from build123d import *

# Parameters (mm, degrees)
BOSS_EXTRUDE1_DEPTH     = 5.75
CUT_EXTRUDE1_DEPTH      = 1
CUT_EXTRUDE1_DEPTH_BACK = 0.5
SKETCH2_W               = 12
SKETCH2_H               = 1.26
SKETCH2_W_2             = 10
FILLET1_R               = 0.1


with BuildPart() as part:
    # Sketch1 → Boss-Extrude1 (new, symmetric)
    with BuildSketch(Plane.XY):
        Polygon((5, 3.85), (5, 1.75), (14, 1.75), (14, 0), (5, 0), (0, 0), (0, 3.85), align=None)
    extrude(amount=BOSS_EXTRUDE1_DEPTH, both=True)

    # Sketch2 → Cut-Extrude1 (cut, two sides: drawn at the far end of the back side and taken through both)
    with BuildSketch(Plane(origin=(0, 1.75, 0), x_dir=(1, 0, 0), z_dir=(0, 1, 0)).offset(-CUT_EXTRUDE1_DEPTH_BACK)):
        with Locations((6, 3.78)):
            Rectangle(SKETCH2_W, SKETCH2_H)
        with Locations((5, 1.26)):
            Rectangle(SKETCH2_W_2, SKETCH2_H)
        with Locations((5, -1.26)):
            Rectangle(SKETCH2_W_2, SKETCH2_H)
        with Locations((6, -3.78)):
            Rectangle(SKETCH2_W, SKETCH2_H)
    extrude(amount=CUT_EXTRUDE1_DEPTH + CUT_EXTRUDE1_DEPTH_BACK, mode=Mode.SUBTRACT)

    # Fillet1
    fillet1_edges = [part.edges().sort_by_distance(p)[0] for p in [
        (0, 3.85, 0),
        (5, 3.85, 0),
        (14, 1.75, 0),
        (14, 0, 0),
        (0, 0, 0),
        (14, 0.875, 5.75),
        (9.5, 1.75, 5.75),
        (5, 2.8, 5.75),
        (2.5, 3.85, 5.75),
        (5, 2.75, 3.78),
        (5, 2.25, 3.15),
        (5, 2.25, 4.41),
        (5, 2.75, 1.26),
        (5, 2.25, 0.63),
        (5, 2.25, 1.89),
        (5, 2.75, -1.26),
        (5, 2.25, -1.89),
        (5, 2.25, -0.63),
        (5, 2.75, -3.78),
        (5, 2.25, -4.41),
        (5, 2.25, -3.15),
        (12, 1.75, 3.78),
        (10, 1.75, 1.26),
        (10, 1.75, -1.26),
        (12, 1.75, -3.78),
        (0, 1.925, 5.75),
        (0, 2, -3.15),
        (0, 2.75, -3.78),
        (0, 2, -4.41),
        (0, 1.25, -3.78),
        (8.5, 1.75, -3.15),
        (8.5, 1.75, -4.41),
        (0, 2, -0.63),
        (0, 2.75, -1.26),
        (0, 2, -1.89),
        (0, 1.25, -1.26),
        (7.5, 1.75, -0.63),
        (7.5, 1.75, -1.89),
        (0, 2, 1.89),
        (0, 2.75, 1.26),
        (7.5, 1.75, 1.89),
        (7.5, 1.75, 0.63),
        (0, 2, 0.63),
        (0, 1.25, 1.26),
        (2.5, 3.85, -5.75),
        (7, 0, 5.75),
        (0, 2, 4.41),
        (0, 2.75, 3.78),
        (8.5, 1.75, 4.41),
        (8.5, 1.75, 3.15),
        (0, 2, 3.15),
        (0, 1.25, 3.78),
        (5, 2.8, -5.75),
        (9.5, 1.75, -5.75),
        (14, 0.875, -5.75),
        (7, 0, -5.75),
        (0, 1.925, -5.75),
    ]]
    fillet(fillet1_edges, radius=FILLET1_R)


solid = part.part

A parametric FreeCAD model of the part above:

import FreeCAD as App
import Part
import Sketcher

V = App.Vector


def edges_at(feature, points):
    """Names of the edges that pass closest to the given points."""
    edges = feature.Shape.Edges
    near = lambda p: min(range(len(edges)), key=lambda i: edges[i].distToShape(Part.Vertex(*p))[0])
    return sorted({f"Edge{near(p) + 1}" for p in points})


def add_polygon(sketch, points):
    """Adds a closed chain of lines whose ends are joined by coincident constraints."""
    first, n = sketch.GeometryCount, len(points)
    for a, b in zip(points, points[1:] + points[:1]):
        sketch.addGeometry(Part.LineSegment(App.Vector(*a, 0), App.Vector(*b, 0)), False)
    for i in range(n):
        sketch.addConstraint(Sketcher.Constraint("Coincident", first + i, 2, first + (i + 1) % n, 1))

doc = App.newDocument("Part")
body = doc.addObject("PartDesign::Body", "Body")

sketch1 = body.newObject("Sketcher::SketchObject", "Sketch")
sketch1.AttachmentSupport = (doc.getObject("XY_Plane"), [""])
sketch1.MapMode = "FlatFace"
add_polygon(sketch1, [(5, 1.75), (5, 3.85), (0, 3.85), (0, 0), (14, 0), (14, 1.75)])
sketch1.addConstraint(Sketcher.Constraint("Vertical", 0))
sketch1.addConstraint(Sketcher.Constraint("Horizontal", 1))
sketch1.addConstraint(Sketcher.Constraint("Vertical", 2))
sketch1.addConstraint(Sketcher.Constraint("Horizontal", 3))
sketch1.addConstraint(Sketcher.Constraint("Vertical", 4))
sketch1.addConstraint(Sketcher.Constraint("Horizontal", 5))
sketch1.addConstraint(Sketcher.Constraint("Coincident", 2, 2, -1, 1))
sketch1.addConstraint(Sketcher.Constraint("DistanceX", 1, 2, 1, 1, 5.0))
sketch1.addConstraint(Sketcher.Constraint("DistanceX", 3, 1, 3, 2, 14.0))
sketch1.addConstraint(Sketcher.Constraint("DistanceY", 0, 1, 0, 2, 2.1))
sketch1.addConstraint(Sketcher.Constraint("DistanceY", 2, 2, 2, 1, 3.85))
pad1 = body.newObject("PartDesign::Pad", "Pad")
pad1.Profile = sketch1
pad1.Length = 11.5
pad1.Midplane = True

sketch2 = body.newObject("Sketcher::SketchObject", "Sketch001")
sketch2.AttachmentSupport = (doc.getObject("XZ_Plane"), [""])
sketch2.MapMode = "FlatFace"
sketch2.AttachmentOffset = App.Placement(V(0, 0, -1.75), App.Rotation())
add_polygon(sketch2, [(0, -4.41), (0, -3.15), (12, -3.15), (12, -4.41)])
add_polygon(sketch2, [(0, -1.89), (0, -0.63), (10, -0.63), (10, -1.89)])
add_polygon(sketch2, [(0, 0.63), (0, 1.89), (10, 1.89), (10, 0.63)])
add_polygon(sketch2, [(0, 3.15), (0, 4.41), (12, 4.41), (12, 3.15)])
sketch2.addConstraint(Sketcher.Constraint("Vertical", 0))
sketch2.addConstraint(Sketcher.Constraint("Horizontal", 1))
sketch2.addConstraint(Sketcher.Constraint("Vertical", 2))
sketch2.addConstraint(Sketcher.Constraint("Horizontal", 3))
sketch2.addConstraint(Sketcher.Constraint("Vertical", 4))
sketch2.addConstraint(Sketcher.Constraint("Horizontal", 5))
sketch2.addConstraint(Sketcher.Constraint("Vertical", 6))
sketch2.addConstraint(Sketcher.Constraint("Horizontal", 7))
sketch2.addConstraint(Sketcher.Constraint("Vertical", 8))
sketch2.addConstraint(Sketcher.Constraint("Horizontal", 9))
sketch2.addConstraint(Sketcher.Constraint("Vertical", 10))
sketch2.addConstraint(Sketcher.Constraint("Horizontal", 11))
sketch2.addConstraint(Sketcher.Constraint("Vertical", 12))
sketch2.addConstraint(Sketcher.Constraint("Horizontal", 13))
sketch2.addConstraint(Sketcher.Constraint("Vertical", 14))
sketch2.addConstraint(Sketcher.Constraint("Horizontal", 15))
sketch2.addConstraint(Sketcher.Constraint("Symmetric", 7, 2, 8, 2, -1, 1))
sketch2.addConstraint(Sketcher.Constraint("Symmetric", 3, 2, 12, 2, -1, 1))
sketch2.addConstraint(Sketcher.Constraint("Symmetric", 5, 2, 10, 2, -1))
sketch2.addConstraint(Sketcher.Constraint("Symmetric", 1, 2, 14, 2, -1))
sketch2.addConstraint(Sketcher.Constraint("PointOnObject", 0, 2, -2))
sketch2.addConstraint(Sketcher.Constraint("PointOnObject", 4, 2, -2))
sketch2.addConstraint(Sketcher.Constraint("Equal", 2, 4))
sketch2.addConstraint(Sketcher.Constraint("DistanceX", 1, 1, 1, 2, 12.0))
sketch2.addConstraint(Sketcher.Constraint("DistanceX", 5, 1, 5, 2, 10.0))
sketch2.addConstraint(Sketcher.Constraint("DistanceY", 0, 1, 0, 2, 1.26))
sketch2.addConstraint(Sketcher.Constraint("DistanceY", 3, 2, 8, 2, 6.3))
sketch2.addConstraint(Sketcher.Constraint("DistanceY", 0, 2, -1, 1, 3.15))
pocket1 = body.newObject("PartDesign::Pocket", "Pocket")
pocket1.Profile = sketch2
pocket1.Type = "TwoLengths"
pocket1.Length = 1
pocket1.Length2 = 0.5
doc.recompute()

fillet = body.newObject("PartDesign::Fillet", "Fillet")
fillet.Base = (pocket1, edges_at(pocket1, [
    (0, 3.85, 0),
    (5, 3.85, 0),
    (14, 1.75, 0),
    (14, 0, 0),
    (0, 0, 0),
    (14, 0.875, 5.75),
    (9.5, 1.75, 5.75),
    (5, 2.8, 5.75),
    (2.5, 3.85, 5.75),
    (5, 2.75, 3.78),
    (5, 2.25, 3.15),
    (5, 2.25, 4.41),
    (5, 2.75, 1.26),
    (5, 2.25, 0.63),
    (5, 2.25, 1.89),
    (5, 2.75, -1.26),
    (5, 2.25, -1.89),
    (5, 2.25, -0.63),
    (5, 2.75, -3.78),
    (5, 2.25, -4.41),
    (5, 2.25, -3.15),
    (12, 1.75, 3.78),
    (10, 1.75, 1.26),
    (10, 1.75, -1.26),
    (12, 1.75, -3.78),
    (0, 1.925, 5.75),
    (0, 2, -3.15),
    (0, 2.75, -3.78),
    (0, 2, -4.41),
    (0, 1.25, -3.78),
    (8.5, 1.75, -3.15),
    (8.5, 1.75, -4.41),
    (0, 2, -0.63),
    (0, 2.75, -1.26),
    (0, 2, -1.89),
    (0, 1.25, -1.26),
    (7.5, 1.75, -0.63),
    (7.5, 1.75, -1.89),
    (0, 2, 1.89),
    (0, 2.75, 1.26),
    (7.5, 1.75, 1.89),
    (7.5, 1.75, 0.63),
    (0, 2, 0.63),
    (0, 1.25, 1.26),
    (2.5, 3.85, -5.75),
    (7, 0, 5.75),
    (0, 2, 4.41),
    (0, 2.75, 3.78),
    (8.5, 1.75, 4.41),
    (8.5, 1.75, 3.15),
    (0, 2, 3.15),
    (0, 1.25, 3.78),
    (5, 2.8, -5.75),
    (9.5, 1.75, -5.75),
    (14, 0.875, -5.75),
    (7, 0, -5.75),
    (0, 1.925, -5.75),
]))
fillet.Radius = 0.1

doc.recompute()
